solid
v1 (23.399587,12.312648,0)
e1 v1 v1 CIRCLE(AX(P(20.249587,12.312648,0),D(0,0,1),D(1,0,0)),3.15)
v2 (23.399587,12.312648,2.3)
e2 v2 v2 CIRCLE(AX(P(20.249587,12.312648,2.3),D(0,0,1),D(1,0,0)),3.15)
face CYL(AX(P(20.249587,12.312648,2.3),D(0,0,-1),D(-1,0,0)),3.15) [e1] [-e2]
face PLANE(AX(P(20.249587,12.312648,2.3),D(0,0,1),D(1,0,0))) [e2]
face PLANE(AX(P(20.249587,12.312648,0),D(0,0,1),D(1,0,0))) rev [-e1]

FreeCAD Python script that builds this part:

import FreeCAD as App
import Part
import Sketcher
from FreeCAD import Vector

doc = App.newDocument("Part")
params = doc.addObject("Spreadsheet::Sheet", "Params")
for row, (alias, value) in enumerate([
    ("sketch1_diameter", "6.3 mm"),
    ("pad1_length", "2.3 mm"),
], start=1):
    params.set(f"A{row}", alias)
    params.set(f"B{row}", "=" + value)
    params.setAlias(f"B{row}", alias)

body = doc.addObject("PartDesign::Body", "Body")

sketch1 = doc.addObject("Sketcher::SketchObject", "Sketch")
body.addObject(sketch1)
sketch1.AttachmentSupport = (doc.XY_Plane, [""])
sketch1.MapMode = "FlatFace"
sketch1.addGeometry(Part.Circle(Vector(20.2, 12.3, 0), Vector(0, 0, 1), 3.1), False)
sketch1.addConstraint(Sketcher.Constraint("Diameter", 0, 6.3))
sketch1.addConstraint(Sketcher.Constraint("DistanceY", -1, 1, 0, 3, 12.312648))
sketch1.addConstraint(Sketcher.Constraint("DistanceX", -1, 1, 0, 3, 20.249587))
sketch1.setExpression("Constraints[0]", "Params.sketch1_diameter")
pad1 = doc.addObject("PartDesign::Pad", "Pad")
body.addObject(pad1)
pad1.Profile = sketch1
pad1.setExpression("Length", "Params.pad1_length")

doc.recompute()
